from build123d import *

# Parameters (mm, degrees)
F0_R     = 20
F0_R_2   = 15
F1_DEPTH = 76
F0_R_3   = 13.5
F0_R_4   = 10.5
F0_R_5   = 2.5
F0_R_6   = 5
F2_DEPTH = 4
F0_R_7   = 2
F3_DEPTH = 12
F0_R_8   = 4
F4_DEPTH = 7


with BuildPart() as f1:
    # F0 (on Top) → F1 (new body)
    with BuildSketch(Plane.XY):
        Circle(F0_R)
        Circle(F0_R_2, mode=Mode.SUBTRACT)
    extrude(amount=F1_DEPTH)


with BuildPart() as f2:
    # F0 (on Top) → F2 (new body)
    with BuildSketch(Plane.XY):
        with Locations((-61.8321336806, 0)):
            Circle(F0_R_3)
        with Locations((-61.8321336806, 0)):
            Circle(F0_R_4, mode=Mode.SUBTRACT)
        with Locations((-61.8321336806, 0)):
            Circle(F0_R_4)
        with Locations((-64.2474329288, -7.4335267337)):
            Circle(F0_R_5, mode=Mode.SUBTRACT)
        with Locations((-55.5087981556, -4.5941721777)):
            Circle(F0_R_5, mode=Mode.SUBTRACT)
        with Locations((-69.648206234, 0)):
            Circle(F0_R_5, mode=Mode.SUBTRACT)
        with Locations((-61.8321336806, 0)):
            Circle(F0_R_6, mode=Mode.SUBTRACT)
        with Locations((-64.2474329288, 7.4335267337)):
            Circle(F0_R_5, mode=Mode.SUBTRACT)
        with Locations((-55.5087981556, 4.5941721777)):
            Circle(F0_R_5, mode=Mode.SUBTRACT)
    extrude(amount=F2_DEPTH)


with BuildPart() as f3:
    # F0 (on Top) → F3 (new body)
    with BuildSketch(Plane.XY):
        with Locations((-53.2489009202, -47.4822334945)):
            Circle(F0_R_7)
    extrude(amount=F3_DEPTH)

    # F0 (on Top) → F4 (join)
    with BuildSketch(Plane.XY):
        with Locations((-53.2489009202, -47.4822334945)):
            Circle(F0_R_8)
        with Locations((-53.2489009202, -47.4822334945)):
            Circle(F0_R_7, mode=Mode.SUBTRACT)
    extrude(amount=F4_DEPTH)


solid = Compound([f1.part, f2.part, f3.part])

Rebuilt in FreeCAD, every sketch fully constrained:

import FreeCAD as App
import Part
import Sketcher

V = App.Vector

doc = App.newDocument("Part")
body = doc.addObject("PartDesign::Body", "Body")

# Sketch on XY plane
sketch1 = doc.addObject("Sketcher::SketchObject", "Sketch")
body.addObject(sketch1)
sketch1.AttachmentSupport = (doc.XY_Plane, [""])
sketch1.MapMode = "FlatFace"
sketch1.addGeometry([
    Part.Circle(V(0, 0, 0), V(0, 0, 1), 20),
    Part.Circle(V(0, 0, 0), V(0, 0, 1), 15),
], False)
sketch1.addConstraint([
    Sketcher.Constraint("Coincident", 0, 3, -1, 1),
    Sketcher.Constraint("Coincident", 1, 3, -1, 1),
    Sketcher.Constraint("Diameter", 0, 40.0),
    Sketcher.Constraint("Diameter", 1, 30.0),
])
pad1 = doc.addObject("PartDesign::Pad", "Pad")
body.addObject(pad1)
pad1.Profile = sketch1
pad1.Length = 76
body2 = doc.addObject("PartDesign::Body", "Body001")

# Sketch on XY plane
sketch2 = doc.addObject("Sketcher::SketchObject", "Sketch001")
body2.addObject(sketch2)
sketch2.AttachmentSupport = (doc.getObject("XY_Plane001"), [""])
sketch2.MapMode = "FlatFace"
sketch2.addGeometry([
    Part.Circle(V(-61.8, 0, 0), V(0, 0, 1), 13.5),  # 0
    Part.Circle(V(-64.2, -7.4, 0), V(0, 0, 1), 2.5),  # 1
    Part.Circle(V(-55.5, -4.6, 0), V(0, 0, 1), 2.5),  # 2
    Part.Circle(V(-69.6, 0, 0), V(0, 0, 1), 2.5),  # 3
    Part.Circle(V(-64.2, 7.4, 0), V(0, 0, 1), 2.5),  # 4
    Part.Circle(V(-61.8, 0, 0), V(0, 0, 1), 5),  # 5
    Part.Circle(V(-55.5, 4.6, 0), V(0, 0, 1), 2.5),  # 6
], False)
sketch2.addConstraint([
    Sketcher.Constraint("Coincident", 5, 3, 0, 3),
    Sketcher.Constraint("Equal", 1, 2),
    Sketcher.Constraint("Equal", 2, 3),
    Sketcher.Constraint("Equal", 3, 4),
    Sketcher.Constraint("Equal", 4, 6),
    Sketcher.Constraint("Symmetric", 1, 3, 4, 3, -1),
    Sketcher.Constraint("Symmetric", 2, 3, 6, 3, -1),
    Sketcher.Constraint("PointOnObject", 0, 3, -1),
    Sketcher.Constraint("PointOnObject", 3, 3, -1),
    Sketcher.Constraint("Diameter", 0, 27.0),
    Sketcher.Constraint("Diameter", 1, 5.0),
    Sketcher.Constraint("Diameter", 5, 10.0),
    Sketcher.Constraint("DistanceX", 2, 3, -1, 1, 55.508798),
    Sketcher.Constraint("DistanceX", 1, 3, 0, 3, 2.415299),
    Sketcher.Constraint("DistanceY", 2, 3, 4, 3, 12.027699),
    Sketcher.Constraint("DistanceX", 3, 3, 2, 3, 14.139408),
    Sketcher.Constraint("DistanceX", 0, 3, -1, 1, 61.832134),
    Sketcher.Constraint("DistanceY", 1, 3, -1, 1, 7.433527),
])
pad2 = doc.addObject("PartDesign::Pad", "Pad001")
body2.addObject(pad2)
pad2.Profile = sketch2
pad2.Length = 4
body3 = doc.addObject("PartDesign::Body", "Body002")

# Sketch on XY plane
sketch3 = doc.addObject("Sketcher::SketchObject", "Sketch002")
body3.addObject(sketch3)
sketch3.AttachmentSupport = (doc.getObject("XY_Plane002"), [""])
sketch3.MapMode = "FlatFace"
sketch3.addGeometry(Part.Circle(V(-53.2, -47.5, 0), V(0, 0, 1), 2), False)
sketch3.addConstraint([
    Sketcher.Constraint("Diameter", 0, 4.0),
    Sketcher.Constraint("DistanceX", 0, 3, -1, 1, 53.248901),
    Sketcher.Constraint("DistanceY", 0, 3, -1, 1, 47.482233),
])
pad3 = doc.addObject("PartDesign::Pad", "Pad002")
body3.addObject(pad3)
pad3.Profile = sketch3
pad3.Length = 12

# Sketch on XY plane
sketch4 = doc.addObject("Sketcher::SketchObject", "Sketch003")
body3.addObject(sketch4)
sketch4.AttachmentSupport = (doc.getObject("XY_Plane002"), [""])
sketch4.MapMode = "FlatFace"
sketch4.addGeometry([
    Part.Circle(V(-53.2, -47.5, 0), V(0, 0, 1), 4),
    Part.Circle(V(-53.2, -47.5, 0), V(0, 0, 1), 2),
], False)
sketch4.addConstraint([
    Sketcher.Constraint("Coincident", 1, 3, 0, 3),
    Sketcher.Constraint("Diameter", 0, 8.0),
    Sketcher.Constraint("Diameter", 1, 4.0),
    Sketcher.Constraint("DistanceX", 0, 3, -1, 1, 53.248901),
    Sketcher.Constraint("DistanceY", 0, 3, -1, 1, 47.482233),
])
pad4 = doc.addObject("PartDesign::Pad", "Pad003")
body3.addObject(pad4)
pad4.Profile = sketch4
pad4.Length = 7

doc.recompute()
